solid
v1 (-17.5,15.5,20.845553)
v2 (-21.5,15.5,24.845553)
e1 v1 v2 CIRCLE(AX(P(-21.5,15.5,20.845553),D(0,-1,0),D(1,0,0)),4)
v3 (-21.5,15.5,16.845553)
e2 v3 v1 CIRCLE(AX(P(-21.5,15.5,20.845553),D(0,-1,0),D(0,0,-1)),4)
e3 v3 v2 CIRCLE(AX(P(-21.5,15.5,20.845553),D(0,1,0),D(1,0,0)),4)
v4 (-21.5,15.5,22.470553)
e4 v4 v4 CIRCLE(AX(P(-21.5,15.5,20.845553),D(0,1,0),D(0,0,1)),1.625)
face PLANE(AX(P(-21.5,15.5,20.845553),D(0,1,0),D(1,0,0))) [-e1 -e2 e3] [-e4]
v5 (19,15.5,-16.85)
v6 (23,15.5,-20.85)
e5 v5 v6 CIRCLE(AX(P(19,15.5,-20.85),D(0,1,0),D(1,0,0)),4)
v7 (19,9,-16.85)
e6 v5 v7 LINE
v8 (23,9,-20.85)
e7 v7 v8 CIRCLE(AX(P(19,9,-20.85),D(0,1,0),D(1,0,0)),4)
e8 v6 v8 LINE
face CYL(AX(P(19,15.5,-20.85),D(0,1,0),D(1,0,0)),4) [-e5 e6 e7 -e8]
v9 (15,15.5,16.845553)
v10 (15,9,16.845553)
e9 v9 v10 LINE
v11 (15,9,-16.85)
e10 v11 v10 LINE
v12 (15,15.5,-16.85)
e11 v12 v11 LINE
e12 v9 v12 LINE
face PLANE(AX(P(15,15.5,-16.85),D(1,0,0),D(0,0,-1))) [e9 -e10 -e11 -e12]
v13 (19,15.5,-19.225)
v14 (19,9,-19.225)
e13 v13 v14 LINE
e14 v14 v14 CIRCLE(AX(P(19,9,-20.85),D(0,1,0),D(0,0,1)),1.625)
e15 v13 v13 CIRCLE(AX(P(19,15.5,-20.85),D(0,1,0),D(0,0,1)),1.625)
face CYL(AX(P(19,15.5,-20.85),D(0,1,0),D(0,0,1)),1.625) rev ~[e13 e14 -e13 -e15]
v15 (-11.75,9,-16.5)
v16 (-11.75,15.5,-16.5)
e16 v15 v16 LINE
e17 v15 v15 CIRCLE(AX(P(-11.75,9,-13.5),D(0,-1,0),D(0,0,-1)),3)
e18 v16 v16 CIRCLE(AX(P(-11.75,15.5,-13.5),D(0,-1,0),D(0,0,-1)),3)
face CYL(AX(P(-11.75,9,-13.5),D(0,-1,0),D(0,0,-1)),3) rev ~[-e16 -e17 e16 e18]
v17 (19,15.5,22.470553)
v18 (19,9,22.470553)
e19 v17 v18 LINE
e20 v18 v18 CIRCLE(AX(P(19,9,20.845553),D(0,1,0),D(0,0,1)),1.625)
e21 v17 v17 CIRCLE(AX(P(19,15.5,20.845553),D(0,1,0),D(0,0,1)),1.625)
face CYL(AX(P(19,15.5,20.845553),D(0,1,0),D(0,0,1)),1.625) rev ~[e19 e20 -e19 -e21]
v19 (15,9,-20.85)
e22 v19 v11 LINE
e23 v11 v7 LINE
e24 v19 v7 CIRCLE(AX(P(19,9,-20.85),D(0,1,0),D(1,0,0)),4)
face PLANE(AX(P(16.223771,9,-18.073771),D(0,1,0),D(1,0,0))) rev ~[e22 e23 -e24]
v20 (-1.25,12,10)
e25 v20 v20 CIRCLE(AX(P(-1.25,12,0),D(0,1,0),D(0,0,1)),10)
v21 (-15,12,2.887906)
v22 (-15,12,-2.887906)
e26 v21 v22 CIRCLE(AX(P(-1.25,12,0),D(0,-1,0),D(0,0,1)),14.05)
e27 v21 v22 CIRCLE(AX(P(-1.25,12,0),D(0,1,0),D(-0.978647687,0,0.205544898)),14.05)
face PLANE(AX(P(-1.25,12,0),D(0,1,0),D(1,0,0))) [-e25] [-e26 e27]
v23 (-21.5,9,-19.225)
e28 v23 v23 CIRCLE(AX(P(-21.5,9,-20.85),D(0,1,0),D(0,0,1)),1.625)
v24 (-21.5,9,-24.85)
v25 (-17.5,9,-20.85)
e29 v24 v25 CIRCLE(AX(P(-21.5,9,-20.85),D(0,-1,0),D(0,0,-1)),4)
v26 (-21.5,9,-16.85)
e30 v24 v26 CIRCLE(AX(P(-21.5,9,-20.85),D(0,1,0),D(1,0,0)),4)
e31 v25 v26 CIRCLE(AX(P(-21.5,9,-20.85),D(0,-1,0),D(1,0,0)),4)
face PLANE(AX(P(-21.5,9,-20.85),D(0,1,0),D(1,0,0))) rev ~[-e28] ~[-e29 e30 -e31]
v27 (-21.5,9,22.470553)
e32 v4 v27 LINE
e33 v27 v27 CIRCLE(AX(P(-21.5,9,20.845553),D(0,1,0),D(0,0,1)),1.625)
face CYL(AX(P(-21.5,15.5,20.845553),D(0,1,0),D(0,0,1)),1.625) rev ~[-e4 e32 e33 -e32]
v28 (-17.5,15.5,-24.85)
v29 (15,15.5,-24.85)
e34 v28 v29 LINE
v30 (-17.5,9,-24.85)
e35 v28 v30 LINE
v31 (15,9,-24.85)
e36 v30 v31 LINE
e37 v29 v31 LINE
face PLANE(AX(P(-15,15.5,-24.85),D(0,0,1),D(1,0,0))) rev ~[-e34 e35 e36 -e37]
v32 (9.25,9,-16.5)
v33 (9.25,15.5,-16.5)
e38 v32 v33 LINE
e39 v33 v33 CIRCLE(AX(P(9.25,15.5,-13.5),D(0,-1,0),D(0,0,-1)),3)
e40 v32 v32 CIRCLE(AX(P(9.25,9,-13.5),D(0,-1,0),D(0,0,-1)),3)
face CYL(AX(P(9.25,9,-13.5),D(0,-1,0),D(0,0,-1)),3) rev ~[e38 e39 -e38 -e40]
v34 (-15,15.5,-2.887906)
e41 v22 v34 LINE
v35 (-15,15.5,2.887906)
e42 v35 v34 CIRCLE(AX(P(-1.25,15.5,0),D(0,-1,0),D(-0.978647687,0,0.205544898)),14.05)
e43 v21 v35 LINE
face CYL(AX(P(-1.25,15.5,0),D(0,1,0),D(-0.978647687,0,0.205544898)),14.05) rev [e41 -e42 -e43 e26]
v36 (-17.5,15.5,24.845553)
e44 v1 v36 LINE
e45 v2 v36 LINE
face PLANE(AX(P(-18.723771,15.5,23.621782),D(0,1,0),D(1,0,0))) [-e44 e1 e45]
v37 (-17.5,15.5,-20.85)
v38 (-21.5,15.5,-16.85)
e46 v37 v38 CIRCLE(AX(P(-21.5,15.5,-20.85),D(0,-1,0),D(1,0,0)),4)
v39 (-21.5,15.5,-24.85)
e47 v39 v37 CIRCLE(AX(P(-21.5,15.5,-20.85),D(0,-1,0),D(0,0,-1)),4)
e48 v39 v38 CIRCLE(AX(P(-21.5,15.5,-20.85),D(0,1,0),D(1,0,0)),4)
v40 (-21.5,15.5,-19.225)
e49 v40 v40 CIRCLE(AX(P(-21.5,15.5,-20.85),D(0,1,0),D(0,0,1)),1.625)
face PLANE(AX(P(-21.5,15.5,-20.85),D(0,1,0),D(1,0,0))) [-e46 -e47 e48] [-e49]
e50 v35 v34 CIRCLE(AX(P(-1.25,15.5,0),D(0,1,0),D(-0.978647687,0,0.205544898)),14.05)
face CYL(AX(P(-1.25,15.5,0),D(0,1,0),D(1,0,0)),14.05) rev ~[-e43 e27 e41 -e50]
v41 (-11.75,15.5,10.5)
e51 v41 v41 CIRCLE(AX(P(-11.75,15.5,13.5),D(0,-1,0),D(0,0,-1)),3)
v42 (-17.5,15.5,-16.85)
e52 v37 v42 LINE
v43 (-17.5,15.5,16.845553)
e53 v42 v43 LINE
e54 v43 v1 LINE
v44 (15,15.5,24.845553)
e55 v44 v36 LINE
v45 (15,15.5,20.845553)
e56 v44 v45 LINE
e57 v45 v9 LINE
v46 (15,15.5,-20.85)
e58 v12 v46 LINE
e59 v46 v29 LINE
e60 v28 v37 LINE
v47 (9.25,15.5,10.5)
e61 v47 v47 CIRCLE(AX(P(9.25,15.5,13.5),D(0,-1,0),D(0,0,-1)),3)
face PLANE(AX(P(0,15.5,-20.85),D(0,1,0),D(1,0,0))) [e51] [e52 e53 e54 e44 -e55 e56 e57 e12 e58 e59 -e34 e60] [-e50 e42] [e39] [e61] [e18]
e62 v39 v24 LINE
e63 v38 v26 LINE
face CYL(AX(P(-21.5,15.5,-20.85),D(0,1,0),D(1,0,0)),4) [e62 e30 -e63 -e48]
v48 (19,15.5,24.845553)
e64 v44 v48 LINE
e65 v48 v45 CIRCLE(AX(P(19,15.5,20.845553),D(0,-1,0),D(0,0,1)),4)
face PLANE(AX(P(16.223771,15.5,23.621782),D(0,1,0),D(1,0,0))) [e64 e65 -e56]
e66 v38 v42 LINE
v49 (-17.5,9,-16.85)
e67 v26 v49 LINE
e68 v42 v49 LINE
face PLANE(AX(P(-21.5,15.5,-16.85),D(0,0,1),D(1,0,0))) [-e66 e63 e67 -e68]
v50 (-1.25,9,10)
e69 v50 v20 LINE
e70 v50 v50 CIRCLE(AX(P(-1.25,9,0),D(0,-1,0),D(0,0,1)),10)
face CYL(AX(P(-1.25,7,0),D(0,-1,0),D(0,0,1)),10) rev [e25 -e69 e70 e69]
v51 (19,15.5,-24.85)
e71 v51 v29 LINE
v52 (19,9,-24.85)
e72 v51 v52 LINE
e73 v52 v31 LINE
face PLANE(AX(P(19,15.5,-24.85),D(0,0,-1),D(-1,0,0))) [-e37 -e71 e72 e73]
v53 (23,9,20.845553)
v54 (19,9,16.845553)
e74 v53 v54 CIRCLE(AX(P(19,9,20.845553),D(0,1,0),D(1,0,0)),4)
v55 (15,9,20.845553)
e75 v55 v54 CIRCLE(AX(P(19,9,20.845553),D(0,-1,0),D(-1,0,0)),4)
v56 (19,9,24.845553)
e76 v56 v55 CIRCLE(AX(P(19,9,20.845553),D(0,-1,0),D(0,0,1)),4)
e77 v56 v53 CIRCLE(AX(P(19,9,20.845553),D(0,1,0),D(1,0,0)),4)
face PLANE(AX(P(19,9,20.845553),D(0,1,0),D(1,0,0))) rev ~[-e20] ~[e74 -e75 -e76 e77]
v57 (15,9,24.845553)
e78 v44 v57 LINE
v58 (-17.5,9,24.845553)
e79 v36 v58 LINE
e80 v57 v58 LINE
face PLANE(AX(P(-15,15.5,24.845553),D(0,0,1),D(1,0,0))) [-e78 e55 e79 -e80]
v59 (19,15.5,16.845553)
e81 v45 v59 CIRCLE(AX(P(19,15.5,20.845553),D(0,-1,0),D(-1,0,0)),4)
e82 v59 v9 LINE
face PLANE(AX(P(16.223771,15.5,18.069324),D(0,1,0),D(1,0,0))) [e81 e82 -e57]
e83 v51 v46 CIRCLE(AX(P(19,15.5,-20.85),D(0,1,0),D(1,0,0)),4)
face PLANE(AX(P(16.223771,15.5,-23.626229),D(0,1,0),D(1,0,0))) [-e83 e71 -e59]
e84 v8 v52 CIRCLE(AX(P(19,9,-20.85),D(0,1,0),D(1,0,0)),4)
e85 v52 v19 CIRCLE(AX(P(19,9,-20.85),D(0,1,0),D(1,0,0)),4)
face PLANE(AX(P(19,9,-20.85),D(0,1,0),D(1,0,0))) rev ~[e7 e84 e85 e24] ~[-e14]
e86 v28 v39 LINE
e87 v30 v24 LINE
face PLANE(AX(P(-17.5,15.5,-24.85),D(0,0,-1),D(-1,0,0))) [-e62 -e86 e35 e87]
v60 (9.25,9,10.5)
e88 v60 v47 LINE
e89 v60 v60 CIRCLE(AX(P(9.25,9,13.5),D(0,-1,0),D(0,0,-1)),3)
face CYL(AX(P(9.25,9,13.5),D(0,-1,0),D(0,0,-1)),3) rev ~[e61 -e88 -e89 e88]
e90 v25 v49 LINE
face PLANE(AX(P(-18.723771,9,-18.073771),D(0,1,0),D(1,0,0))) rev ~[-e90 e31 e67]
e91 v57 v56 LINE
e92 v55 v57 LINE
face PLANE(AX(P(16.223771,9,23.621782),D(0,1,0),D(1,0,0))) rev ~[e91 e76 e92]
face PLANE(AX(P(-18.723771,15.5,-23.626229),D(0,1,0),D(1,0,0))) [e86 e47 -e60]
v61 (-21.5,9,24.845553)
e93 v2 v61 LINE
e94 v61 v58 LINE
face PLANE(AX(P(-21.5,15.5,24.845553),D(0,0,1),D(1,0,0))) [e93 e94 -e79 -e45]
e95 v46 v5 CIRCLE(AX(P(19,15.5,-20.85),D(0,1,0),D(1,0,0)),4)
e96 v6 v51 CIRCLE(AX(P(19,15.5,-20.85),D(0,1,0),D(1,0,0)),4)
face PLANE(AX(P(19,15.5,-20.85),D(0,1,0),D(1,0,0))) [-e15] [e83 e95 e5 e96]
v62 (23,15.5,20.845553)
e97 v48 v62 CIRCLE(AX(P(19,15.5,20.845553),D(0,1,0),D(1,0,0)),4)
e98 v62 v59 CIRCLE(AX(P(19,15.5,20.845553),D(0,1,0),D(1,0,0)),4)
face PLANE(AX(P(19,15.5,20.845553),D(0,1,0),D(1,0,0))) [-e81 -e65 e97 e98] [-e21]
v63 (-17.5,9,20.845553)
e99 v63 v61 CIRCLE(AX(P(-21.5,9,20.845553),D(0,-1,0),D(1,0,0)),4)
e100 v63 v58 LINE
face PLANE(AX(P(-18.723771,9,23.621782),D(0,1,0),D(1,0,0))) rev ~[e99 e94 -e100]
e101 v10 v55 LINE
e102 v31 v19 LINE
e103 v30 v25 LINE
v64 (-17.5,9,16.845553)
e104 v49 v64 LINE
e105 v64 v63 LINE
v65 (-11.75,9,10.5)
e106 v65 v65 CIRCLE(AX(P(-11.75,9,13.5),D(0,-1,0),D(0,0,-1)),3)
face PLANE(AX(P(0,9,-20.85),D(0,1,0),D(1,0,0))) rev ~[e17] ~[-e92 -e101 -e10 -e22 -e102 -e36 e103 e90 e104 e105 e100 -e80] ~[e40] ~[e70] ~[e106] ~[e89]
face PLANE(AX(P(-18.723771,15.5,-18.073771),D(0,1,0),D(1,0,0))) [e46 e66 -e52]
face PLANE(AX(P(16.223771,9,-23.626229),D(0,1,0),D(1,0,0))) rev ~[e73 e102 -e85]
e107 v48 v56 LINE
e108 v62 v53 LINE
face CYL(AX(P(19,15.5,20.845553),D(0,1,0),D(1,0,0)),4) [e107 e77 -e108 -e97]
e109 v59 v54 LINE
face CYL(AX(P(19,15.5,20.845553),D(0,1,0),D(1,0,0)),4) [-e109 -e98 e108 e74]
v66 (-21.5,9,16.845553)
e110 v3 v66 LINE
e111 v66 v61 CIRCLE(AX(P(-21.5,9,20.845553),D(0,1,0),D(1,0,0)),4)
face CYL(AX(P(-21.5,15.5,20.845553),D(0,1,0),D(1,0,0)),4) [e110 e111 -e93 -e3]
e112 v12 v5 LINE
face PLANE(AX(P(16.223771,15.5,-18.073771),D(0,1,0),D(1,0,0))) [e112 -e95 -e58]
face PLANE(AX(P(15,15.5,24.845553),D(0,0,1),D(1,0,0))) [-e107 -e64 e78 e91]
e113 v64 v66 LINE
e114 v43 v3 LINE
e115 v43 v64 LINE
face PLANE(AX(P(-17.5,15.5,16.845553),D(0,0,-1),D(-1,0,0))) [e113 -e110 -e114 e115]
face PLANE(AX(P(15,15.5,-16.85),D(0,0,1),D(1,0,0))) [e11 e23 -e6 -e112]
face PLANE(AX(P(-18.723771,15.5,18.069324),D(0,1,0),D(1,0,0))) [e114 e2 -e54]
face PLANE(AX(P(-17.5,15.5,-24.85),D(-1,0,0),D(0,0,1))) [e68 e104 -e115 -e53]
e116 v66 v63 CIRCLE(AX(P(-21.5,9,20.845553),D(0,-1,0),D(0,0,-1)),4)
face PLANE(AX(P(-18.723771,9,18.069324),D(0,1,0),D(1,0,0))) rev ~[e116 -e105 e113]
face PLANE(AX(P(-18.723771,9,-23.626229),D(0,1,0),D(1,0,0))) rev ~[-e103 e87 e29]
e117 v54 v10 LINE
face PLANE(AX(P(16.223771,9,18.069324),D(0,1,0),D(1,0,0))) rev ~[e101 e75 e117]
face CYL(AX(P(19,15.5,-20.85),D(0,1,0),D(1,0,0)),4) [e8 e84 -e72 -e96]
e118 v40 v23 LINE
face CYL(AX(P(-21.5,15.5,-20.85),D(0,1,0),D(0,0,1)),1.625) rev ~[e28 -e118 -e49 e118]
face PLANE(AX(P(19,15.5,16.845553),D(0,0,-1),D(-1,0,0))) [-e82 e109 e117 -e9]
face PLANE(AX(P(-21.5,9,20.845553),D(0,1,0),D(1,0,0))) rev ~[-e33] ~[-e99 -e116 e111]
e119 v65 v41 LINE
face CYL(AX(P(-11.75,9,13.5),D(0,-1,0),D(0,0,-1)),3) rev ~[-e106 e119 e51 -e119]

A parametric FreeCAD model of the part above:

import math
import FreeCAD as App
import Part
import Sketcher

V = App.Vector

doc = App.newDocument("Part")
params = doc.addObject("Spreadsheet::Sheet", "Params")
for row, (alias, value) in enumerate([
    ("sketch1_radius", "14 mm"),
    ("sketch1_diameter", "2.75 mm"),
    ("sketch1_width", "30 mm"),
    ("sketch1_height", "33.7 mm"),
    ("pad1_length", "15 mm"),
    ("sketch2_diameter", "28 mm"),
    ("sketch2_diameter2", "20 mm"),
    ("pad2_length", "8 mm"),
    ("sketch3_diameter", "28 mm"),
    ("sketch3_diameter2", "20 mm"),
    ("pocket1_length", "3 mm"),
    ("sketch4_radius", "14 mm"),
    ("sketch4_diameter", "2.75 mm"),
    ("sketch4_width", "30 mm"),
    ("sketch4_height", "33.7 mm"),
    ("pad3_length", "0.5 mm"),
    ("pocket2_length", "7 mm"),
    ("pocket3_length", "2 mm"),
    ("sketch7_radius", "3.5 mm"),
    ("sketch7_diameter", "3.25 mm"),
    ("sketch7_height", "3.5 mm"),
    ("pad4_length", "6.5 mm"),
    ("sketch8_diameter", "7 mm"),
    ("sketch8_diameter2", "3.25 mm"),
    ("pocket4_length", "3 mm"),
    ("sketch9_diameter", "6 mm"),
    ("pocket5_length", "28 mm"),
    ("sketch10_diameter", "28.1 mm"),
    ("pocket6_length", "3.5 mm"),
    ("sketch11_width", "30 mm"),
    ("sketch11_height", "8 mm"),
    ("pad5_length", "6.5 mm"),
    ("sketch12_radius", "14.05 mm"),
    ("sketch12_width", "2.5 mm"),
    ("pad6_length", "6.5 mm"),
    ("sketch13_diameter", "28 mm"),
    ("sketch13_diameter2", "28.1 mm"),
    ("pad7_length", "3 mm"),
    ("sketch14_radius", "4 mm"),
    ("sketch14_diameter", "3.25 mm"),
    ("sketch14_width", "4 mm"),
    ("pad8_length", "6.5 mm"),
], start=1):
    params.set(f"A{row}", alias)
    params.set(f"B{row}", "=" + value)
    params.setAlias(f"B{row}", alias)

body = doc.addObject("PartDesign::Body", "Body")

# Sketch on XZ plane
sketch1 = body.newObject("Sketcher::SketchObject", "Sketch")
sketch1.AttachmentSupport = (doc.getObject("XZ_Plane"), [""])
sketch1.MapMode = "FlatFace"
sketch1.addGeometry([
    Part.LineSegment(V(-15, 16.9, 0), V(15, 16.9, 0)),  # 0
    Part.LineSegment(V(15, 16.9, 0), V(15, -16.9, 0)),  # 1
    Part.LineSegment(V(15, -16.9, 0), V(-15, -16.9, 0)),  # 2
    Part.LineSegment(V(-15, -16.9, 0), V(-15, -2.6, 0)),  # 3
    Part.ArcOfCircle(Part.Circle(V(-1.2, 0, 0), V(0, 0, 1), 14), math.radians(-169), math.radians(0)),  # 4
    Part.ArcOfCircle(Part.Circle(V(-1.2, 0, 0), V(0, 0, 1), 14), math.radians(0), math.radians(169)),  # 5
    Part.LineSegment(V(-15, 2.6, 0), V(-15, 16.9, 0)),  # 6
    Part.Circle(V(-11.8, 13.5, 0), V(0, 0, 1), 1.4),  # 7
    Part.Circle(V(9.2, 13.5, 0), V(0, 0, 1), 1.5),  # 8
    Part.Circle(V(-11.8, -13.5, 0), V(0, 0, 1), 1.4),  # 9
    Part.Circle(V(9.2, -13.5, 0), V(0, 0, 1), 1.5),  # 10
], False)
sketch1.addConstraint([
    Sketcher.Constraint("Coincident", 0, 2, 1, 1),
    Sketcher.Constraint("Coincident", 1, 2, 2, 1),
    Sketcher.Constraint("Coincident", 2, 2, 3, 1),
    Sketcher.Constraint("Coincident", 3, 2, 4, 1),
    Sketcher.Constraint("Tangent", 4, 2, 5, 1),
    Sketcher.Constraint("Coincident", 5, 2, 6, 1),
    Sketcher.Constraint("Coincident", 6, 2, 0, 1),
    Sketcher.Constraint("Horizontal", 0),
    Sketcher.Constraint("Vertical", 1),
    Sketcher.Constraint("Horizontal", 2),
    Sketcher.Constraint("Vertical", 3),
    Sketcher.Constraint("Vertical", 6),
    Sketcher.Constraint("Equal", 4, 5),
    Sketcher.Constraint("Equal", 7, 9),
    Sketcher.Constraint("Symmetric", 0, 2, 2, 2, -1, 1),
    Sketcher.Constraint("Symmetric", 7, 3, 9, 3, -1),
    Sketcher.Constraint("Symmetric", 8, 3, 10, 3, -1),
    Sketcher.Constraint("Symmetric", 3, 2, 5, 2, -1),
    Sketcher.Constraint("PointOnObject", 4, 2, -1),
    Sketcher.Constraint("Horizontal", 7, 3, 8, 3),
    Sketcher.Constraint("Radius", 4, 14.0),
    Sketcher.Constraint("Diameter", 7, 2.75),
    Sketcher.Constraint("DistanceX", 0, 1, 0, 2, 30.0),
    Sketcher.Constraint("DistanceY", 1, 2, 1, 1, 33.7),
    Sketcher.Constraint("DistanceX", 7, 3, 8, 3, 21.0),
    Sketcher.Constraint("DistanceY", 9, 3, 7, 3, 27.0),
    Sketcher.Constraint("DistanceX", 7, 3, 4, 3, 10.5),
    Sketcher.Constraint("Diameter", 8, 2.921691),
    Sketcher.Constraint("Diameter", 10, 2.961311),
    Sketcher.Constraint("DistanceX", 4, 3, -1, 1, 1.25),
])
sketch1.setExpression("Constraints[20]", "Params.sketch1_radius")
sketch1.setExpression("Constraints[21]", "Params.sketch1_diameter")
sketch1.setExpression("Constraints[22]", "Params.sketch1_width")
sketch1.setExpression("Constraints[23]", "Params.sketch1_height")
pad1 = body.newObject("PartDesign::Pad", "Pad")
pad1.Profile = sketch1
pad1.setExpression("Length", "Params.pad1_length")
pad1.Reversed = True

# Sketch on XZ plane
sketch2 = body.newObject("Sketcher::SketchObject", "Sketch001")
sketch2.AttachmentSupport = (doc.getObject("XZ_Plane"), [""])
sketch2.MapMode = "FlatFace"
sketch2.AttachmentOffset = App.Placement(V(0, 0, -7), App.Rotation())
sketch2.addGeometry([
    Part.Circle(V(-1, 0, 0), V(0, 0, 1), 14),
    Part.Circle(V(-1, 0, 0), V(0, 0, 1), 10),
], False)
sketch2.addConstraint([
    Sketcher.Constraint("Coincident", 1, 3, 0, 3),
    Sketcher.Constraint("PointOnObject", 0, 3, -1),
    Sketcher.Constraint("Diameter", 0, 28.0),
    Sketcher.Constraint("Diameter", 1, 20.0),
    Sketcher.Constraint("DistanceX", 0, 3, -1, 1, 1.25),
])
sketch2.setExpression("Constraints[2]", "Params.sketch2_diameter")
sketch2.setExpression("Constraints[3]", "Params.sketch2_diameter2")
pad2 = body.newObject("PartDesign::Pad", "Pad001")
pad2.Profile = sketch2
pad2.setExpression("Length", "Params.pad2_length")
pad2.Reversed = True

# Sketch on XZ plane
sketch3 = body.newObject("Sketcher::SketchObject", "Sketch002")
sketch3.AttachmentSupport = (doc.getObject("XZ_Plane"), [""])
sketch3.MapMode = "FlatFace"
sketch3.AttachmentOffset = App.Placement(V(0, 0, -12), App.Rotation())
sketch3.addGeometry([
    Part.Circle(V(-1, 0, 0), V(0, 0, 1), 14),
    Part.Circle(V(-1, 0, 0), V(0, 0, 1), 10),
], False)
sketch3.addConstraint([
    Sketcher.Constraint("Coincident", 1, 3, 0, 3),
    Sketcher.Constraint("PointOnObject", 0, 3, -1),
    Sketcher.Constraint("Diameter", 0, 28.0),
    Sketcher.Constraint("Diameter", 1, 20.0),
    Sketcher.Constraint("DistanceX", 0, 3, -1, 1, 1.25),
])
sketch3.setExpression("Constraints[2]", "Params.sketch3_diameter")
sketch3.setExpression("Constraints[3]", "Params.sketch3_diameter2")
pocket1 = body.newObject("PartDesign::Pocket", "Pocket")
pocket1.Profile = sketch3
pocket1.setExpression("Length", "Params.pocket1_length")

# Sketch on XZ plane
sketch4 = body.newObject("Sketcher::SketchObject", "Sketch003")
sketch4.AttachmentSupport = (doc.getObject("XZ_Plane"), [""])
sketch4.MapMode = "FlatFace"
sketch4.AttachmentOffset = App.Placement(V(0, 0, -15), App.Rotation())
sketch4.addGeometry([
    Part.LineSegment(V(-15, -16.9, 0), V(-15, -2.6, 0)),  # 0
    Part.ArcOfCircle(Part.Circle(V(-1.2, 0, 0), V(0, 0, 1), 14), math.radians(-169), math.radians(169)),  # 1
    Part.LineSegment(V(-15, 2.6, 0), V(-15, 16.9, 0)),  # 2
    Part.LineSegment(V(-15, 16.9, 0), V(15, 16.9, 0)),  # 3
    Part.LineSegment(V(15, 16.9, 0), V(15, -16.9, 0)),  # 4
    Part.LineSegment(V(15, -16.9, 0), V(-15, -16.9, 0)),  # 5
    Part.Circle(V(-11.8, 13.5, 0), V(0, 0, 1), 1.4),  # 6
    Part.Circle(V(9.2, 13.5, 0), V(0, 0, 1), 1.5),  # 7
    Part.Circle(V(-11.8, -13.5, 0), V(0, 0, 1), 1.4),  # 8
    Part.Circle(V(9.2, -13.5, 0), V(0, 0, 1), 1.5),  # 9
], False)
sketch4.addConstraint([
    Sketcher.Constraint("Coincident", 0, 2, 1, 1),
    Sketcher.Constraint("Coincident", 1, 2, 2, 1),
    Sketcher.Constraint("Coincident", 2, 2, 3, 1),
    Sketcher.Constraint("Coincident", 3, 2, 4, 1),
    Sketcher.Constraint("Coincident", 4, 2, 5, 1),
    Sketcher.Constraint("Coincident", 5, 2, 0, 1),
    Sketcher.Constraint("Vertical", 0),
    Sketcher.Constraint("Vertical", 2),
    Sketcher.Constraint("Horizontal", 3),
    Sketcher.Constraint("Vertical", 4),
    Sketcher.Constraint("Horizontal", 5),
    Sketcher.Constraint("Equal", 6, 8),
    Sketcher.Constraint("Symmetric", 2, 2, 4, 2, -1, 1),
    Sketcher.Constraint("Symmetric", 6, 3, 8, 3, -1),
    Sketcher.Constraint("Symmetric", 7, 3, 9, 3, -1),
    Sketcher.Constraint("Symmetric", 0, 2, 1, 2, -1),
    Sketcher.Constraint("Horizontal", 6, 3, 7, 3),
    Sketcher.Constraint("Radius", 1, 14.0),
    Sketcher.Constraint("Diameter", 6, 2.75),
    Sketcher.Constraint("DistanceX", 3, 1, 3, 2, 30.0),
    Sketcher.Constraint("DistanceY", 4, 2, 4, 1, 33.7),
    Sketcher.Constraint("DistanceX", 6, 3, 7, 3, 21.0),
    Sketcher.Constraint("DistanceY", 8, 3, 6, 3, 27.0),
    Sketcher.Constraint("DistanceX", 6, 3, 1, 3, 10.5),
    Sketcher.Constraint("Diameter", 7, 2.921691),
    Sketcher.Constraint("Diameter", 9, 2.961311),
    Sketcher.Constraint("DistanceX", 1, 3, -1, 1, 1.25),
])
sketch4.setExpression("Constraints[17]", "Params.sketch4_radius")
sketch4.setExpression("Constraints[18]", "Params.sketch4_diameter")
sketch4.setExpression("Constraints[19]", "Params.sketch4_width")
sketch4.setExpression("Constraints[20]", "Params.sketch4_height")
pad3 = body.newObject("PartDesign::Pad", "Pad002")
pad3.Profile = sketch4
pad3.setExpression("Length", "Params.pad3_length")
pad3.Reversed = True

# Sketch on XZ plane
sketch5 = body.newObject("Sketcher::SketchObject", "Sketch004")
sketch5.AttachmentSupport = (doc.getObject("XZ_Plane"), [""])
sketch5.MapMode = "FlatFace"
sketch5.addGeometry([
    Part.LineSegment(V(-16, 17, 0), V(-16, -17, 0)),
    Part.LineSegment(V(-16, -17, 0), V(16, -17, 0)),
    Part.LineSegment(V(16, -17, 0), V(16, 17, 0)),
    Part.LineSegment(V(16, 17, 0), V(-16, 17, 0)),
], False)
sketch5.addConstraint([
    Sketcher.Constraint("Coincident", 0, 2, 1, 1),
    Sketcher.Constraint("Coincident", 1, 2, 2, 1),
    Sketcher.Constraint("Coincident", 2, 2, 3, 1),
    Sketcher.Constraint("Coincident", 3, 2, 0, 1),
    Sketcher.Constraint("Vertical", 0),
    Sketcher.Constraint("Horizontal", 1),
    Sketcher.Constraint("Vertical", 2),
    Sketcher.Constraint("Horizontal", 3),
    Sketcher.Constraint("Symmetric", 0, 2, 2, 2, -1, 1),
    Sketcher.Constraint("DistanceX", 1, 1, 1, 2, 32.415484),
    Sketcher.Constraint("DistanceY", 0, 2, 0, 1, 34.714622),
])
pocket2 = body.newObject("PartDesign::Pocket", "Pocket001")
pocket2.Profile = sketch5
pocket2.setExpression("Length", "Params.pocket2_length")

# Sketch on XZ plane
sketch6 = body.newObject("Sketcher::SketchObject", "Sketch005")
sketch6.AttachmentSupport = (doc.getObject("XZ_Plane"), [""])
sketch6.MapMode = "FlatFace"
sketch6.AttachmentOffset = App.Placement(V(0, 0, -7), App.Rotation())
sketch6.addGeometry([
    Part.LineSegment(V(-17, 18, 0), V(-17, -18, 0)),
    Part.LineSegment(V(-17, -18, 0), V(17, -18, 0)),
    Part.LineSegment(V(17, -18, 0), V(17, 18, 0)),
    Part.LineSegment(V(17, 18, 0), V(-17, 18, 0)),
], False)
sketch6.addConstraint([
    Sketcher.Constraint("Coincident", 0, 2, 1, 1),
    Sketcher.Constraint("Coincident", 1, 2, 2, 1),
    Sketcher.Constraint("Coincident", 2, 2, 3, 1),
    Sketcher.Constraint("Coincident", 3, 2, 0, 1),
    Sketcher.Constraint("Vertical", 0),
    Sketcher.Constraint("Horizontal", 1),
    Sketcher.Constraint("Vertical", 2),
    Sketcher.Constraint("Horizontal", 3),
    Sketcher.Constraint("Symmetric", 0, 2, 2, 2, -1, 1),
    Sketcher.Constraint("DistanceX", 1, 1, 1, 2, 33.435139),
    Sketcher.Constraint("DistanceY", 0, 2, 0, 1, 35.826973),
])
pocket3 = body.newObject("PartDesign::Pocket", "Pocket002")
pocket3.Profile = sketch6
pocket3.setExpression("Length", "Params.pocket3_length")

# Sketch on XZ plane
sketch7 = body.newObject("Sketcher::SketchObject", "Sketch006")
sketch7.AttachmentSupport = (doc.getObject("XZ_Plane"), [""])
sketch7.MapMode = "FlatFace"
sketch7.AttachmentOffset = App.Placement(V(0, 0, -9), App.Rotation())
sketch7.addGeometry([
    Part.LineSegment(V(-3.5, 20.4, 0), V(-3.5, 16.9, 0)),  # 0
    Part.LineSegment(V(-3.5, 16.9, 0), V(3.5, 16.9, 0)),  # 1
    Part.LineSegment(V(3.5, 16.9, 0), V(3.5, 20.4, 0)),  # 2
    Part.ArcOfCircle(Part.Circle(V(0, 20.4, 0), V(0, 0, 1), 3.5), math.radians(0), math.radians(180)),  # 3
    Part.Circle(V(0, 20.4, 0), V(0, 0, 1), 1.6),  # 4
    Part.ArcOfCircle(Part.Circle(V(0, -20.4, 0), V(0, 0, 1), 3.5), math.radians(180), math.radians(360)),  # 5
    Part.LineSegment(V(3.5, -20.4, 0), V(3.5, -16.9, 0)),  # 6
    Part.LineSegment(V(3.5, -16.9, 0), V(-3.5, -16.9, 0)),  # 7
    Part.LineSegment(V(-3.5, -16.9, 0), V(-3.5, -20.4, 0)),  # 8
    Part.Circle(V(0, -20.4, 0), V(0, 0, 1), 1.6),  # 9
], False)
sketch7.addConstraint([
    Sketcher.Constraint("Coincident", 0, 2, 1, 1),
    Sketcher.Constraint("Coincident", 1, 2, 2, 1),
    Sketcher.Constraint("Tangent", 2, 2, 3, 1),
    Sketcher.Constraint("Tangent", 3, 2, 0, 1),
    Sketcher.Constraint("Tangent", 5, 2, 6, 1),
    Sketcher.Constraint("Coincident", 6, 2, 7, 1),
    Sketcher.Constraint("Coincident", 7, 2, 8, 1),
    Sketcher.Constraint("Tangent", 8, 2, 5, 1),
    Sketcher.Constraint("Vertical", 0),
    Sketcher.Constraint("Horizontal", 1),
    Sketcher.Constraint("Vertical", 2),
    Sketcher.Constraint("Vertical", 6),
    Sketcher.Constraint("Horizontal", 7),
    Sketcher.Constraint("Vertical", 8),
    Sketcher.Constraint("Coincident", 4, 3, 3, 3),
    Sketcher.Constraint("Coincident", 9, 3, 5, 3),
    Sketcher.Constraint("Equal", 3, 5),
    Sketcher.Constraint("Equal", 4, 9),
    Sketcher.Constraint("Symmetric", 3, 3, 5, 3, -1, 1),
    Sketcher.Constraint("Symmetric", 1, 2, 6, 2, -1),
    Sketcher.Constraint("Radius", 3, 3.5),
    Sketcher.Constraint("Diameter", 4, 3.25),
    Sketcher.Constraint("DistanceY", 0, 2, 0, 1, 3.5),
    Sketcher.Constraint("DistanceY", 5, 3, 3, 3, 40.7),
])
sketch7.setExpression("Constraints[20]", "Params.sketch7_radius")
sketch7.setExpression("Constraints[21]", "Params.sketch7_diameter")
sketch7.setExpression("Constraints[22]", "Params.sketch7_height")
pad4 = body.newObject("PartDesign::Pad", "Pad003")
pad4.Profile = sketch7
pad4.setExpression("Length", "Params.pad4_length")
pad4.Reversed = True

# Sketch on XZ plane
sketch8 = body.newObject("Sketcher::SketchObject", "Sketch007")
sketch8.AttachmentSupport = (doc.getObject("XZ_Plane"), [""])
sketch8.MapMode = "FlatFace"
sketch8.AttachmentOffset = App.Placement(V(0, 0, -9), App.Rotation())
sketch8.addGeometry([
    Part.Circle(V(0, 20.4, 0), V(0, 0, 1), 3.5),
    Part.Circle(V(0, 20.4, 0), V(0, 0, 1), 1.6),
    Part.Circle(V(0, -20.4, 0), V(0, 0, 1), 3.5),
    Part.Circle(V(0, -20.4, 0), V(0, 0, 1), 1.6),
], False)
sketch8.addConstraint([
    Sketcher.Constraint("Coincident", 1, 3, 0, 3),
    Sketcher.Constraint("Coincident", 3, 3, 2, 3),
    Sketcher.Constraint("Equal", 0, 2),
    Sketcher.Constraint("Equal", 1, 3),
    Sketcher.Constraint("Symmetric", 0, 3, 2, 3, -1, 1),
    Sketcher.Constraint("PointOnObject", 0, 3, -2),
    Sketcher.Constraint("Diameter", 0, 7.0),
    Sketcher.Constraint("Diameter", 1, 3.25),
    Sketcher.Constraint("DistanceY", 2, 3, 0, 3, 40.7),
])
sketch8.setExpression("Constraints[6]", "Params.sketch8_diameter")
sketch8.setExpression("Constraints[7]", "Params.sketch8_diameter2")
pocket4 = body.newObject("PartDesign::Pocket", "Pocket003")
pocket4.Profile = sketch8
pocket4.setExpression("Length", "Params.pocket4_length")

# Sketch on XZ plane
sketch9 = body.newObject("Sketcher::SketchObject", "Sketch008")
sketch9.AttachmentSupport = (doc.getObject("XZ_Plane"), [""])
sketch9.MapMode = "FlatFace"
sketch9.AttachmentOffset = App.Placement(V(0, 0, -9), App.Rotation())
sketch9.addGeometry([
    Part.Circle(V(-11.8, 13.5, 0), V(0, 0, 1), 3),
    Part.Circle(V(9.2, 13.5, 0), V(0, 0, 1), 3),
    Part.Circle(V(9.2, -13.5, 0), V(0, 0, 1), 3),
    Part.Circle(V(-11.8, -13.5, 0), V(0, 0, 1), 3),
], False)
sketch9.addConstraint([
    Sketcher.Constraint("Equal", 0, 1),
    Sketcher.Constraint("Equal", 1, 2),
    Sketcher.Constraint("Equal", 2, 3),
    Sketcher.Constraint("Symmetric", 1, 3, 2, 3, -1),
    Sketcher.Constraint("Symmetric", 0, 3, 3, 3, -1),
    Sketcher.Constraint("Horizontal", 0, 3, 1, 3),
    Sketcher.Constraint("Diameter", 0, 6.0),
    Sketcher.Constraint("DistanceX", 0, 3, 1, 3, 21.0),
    Sketcher.Constraint("DistanceY", 2, 3, 1, 3, 27.0),
    Sketcher.Constraint("DistanceX", 0, 3, -1, 1, 11.75),
])
sketch9.setExpression("Constraints[6]", "Params.sketch9_diameter")
pocket5 = body.newObject("PartDesign::Pocket", "Pocket004")
pocket5.Profile = sketch9
pocket5.setExpression("Length", "Params.pocket5_length")

# Sketch on XZ plane
sketch10 = body.newObject("Sketcher::SketchObject", "Sketch009")
sketch10.AttachmentSupport = (doc.getObject("XZ_Plane"), [""])
sketch10.MapMode = "FlatFace"
sketch10.AttachmentOffset = App.Placement(V(0, 0, -15.5), App.Rotation())
sketch10.addGeometry(Part.Circle(V(-1, 0, 0), V(0, 0, 1), 14), False)
sketch10.addConstraint([
    Sketcher.Constraint("PointOnObject", 0, 3, -1),
    Sketcher.Constraint("Diameter", 0, 28.1),
    Sketcher.Constraint("DistanceX", 0, 3, -1, 1, 1.25),
])
sketch10.setExpression("Constraints[1]", "Params.sketch10_diameter")
pocket6 = body.newObject("PartDesign::Pocket", "Pocket005")
pocket6.Profile = sketch10
pocket6.setExpression("Length", "Params.pocket6_length")
pocket6.Reversed = True

# Sketch on XZ plane
sketch11 = body.newObject("Sketcher::SketchObject", "Sketch010")
sketch11.AttachmentSupport = (doc.getObject("XZ_Plane"), [""])
sketch11.MapMode = "FlatFace"
sketch11.AttachmentOffset = App.Placement(V(0, 0, -15.5), App.Rotation())
sketch11.addGeometry([
    Part.LineSegment(V(-15, -25, 0), V(-15, -17, 0)),  # 0
    Part.LineSegment(V(-15, -17, 0), V(15, -17, 0)),  # 1
    Part.LineSegment(V(15, -17, 0), V(15, -25, 0)),  # 2
    Part.LineSegment(V(15, -25, 0), V(-15, -25, 0)),  # 3
    Part.LineSegment(V(-15, 17, 0), V(-15, 25, 0)),  # 4
    Part.LineSegment(V(-15, 25, 0), V(15, 25, 0)),  # 5
    Part.LineSegment(V(15, 25, 0), V(15, 17, 0)),  # 6
    Part.LineSegment(V(15, 17, 0), V(-15, 17, 0)),  # 7
], False)
sketch11.addConstraint([
    Sketcher.Constraint("Coincident", 0, 2, 1, 1),
    Sketcher.Constraint("Coincident", 1, 2, 2, 1),
    Sketcher.Constraint("Coincident", 2, 2, 3, 1),
    Sketcher.Constraint("Coincident", 3, 2, 0, 1),
    Sketcher.Constraint("Coincident", 4, 2, 5, 1),
    Sketcher.Constraint("Coincident", 5, 2, 6, 1),
    Sketcher.Constraint("Coincident", 6, 2, 7, 1),
    Sketcher.Constraint("Coincident", 7, 2, 4, 1),
    Sketcher.Constraint("Vertical", 0),
    Sketcher.Constraint("Horizontal", 1),
    Sketcher.Constraint("Vertical", 2),
    Sketcher.Constraint("Horizontal", 3),
    Sketcher.Constraint("Vertical", 4),
    Sketcher.Constraint("Horizontal", 5),
    Sketcher.Constraint("Vertical", 6),
    Sketcher.Constraint("Horizontal", 7),
    Sketcher.Constraint("Symmetric", 0, 2, 6, 2, -1, 1),
    Sketcher.Constraint("Vertical", 3, 2, 4, 2),
    Sketcher.Constraint("Vertical", 2, 2, 5, 2),
    Sketcher.Constraint("DistanceX", 1, 1, 1, 2, 30.0),
    Sketcher.Constraint("DistanceY", 0, 1, 0, 2, 8.0),
    Sketcher.Constraint("DistanceY", 1, 2, 6, 2, 33.7),
    Sketcher.Constraint("DistanceY", 4, 1, 4, 2, 7.995553),
])
sketch11.setExpression("Constraints[19]", "Params.sketch11_width")
sketch11.setExpression("Constraints[20]", "Params.sketch11_height")
pad5 = body.newObject("PartDesign::Pad", "Pad004")
pad5.Profile = sketch11
pad5.setExpression("Length", "Params.pad5_length")

# Sketch on XZ plane
sketch12 = body.newObject("Sketcher::SketchObject", "Sketch011")
sketch12.AttachmentSupport = (doc.getObject("XZ_Plane"), [""])
sketch12.MapMode = "FlatFace"
sketch12.AttachmentOffset = App.Placement(V(0, 0, -15.5), App.Rotation())
sketch12.addGeometry([
    Part.LineSegment(V(-15, -2.9, 0), V(-15, -24.9, 0)),  # 0
    Part.LineSegment(V(-15, -24.9, 0), V(-17.5, -24.9, 0)),  # 1
    Part.LineSegment(V(-17.5, -24.9, 0), V(-17.5, 24.8, 0)),  # 2
    Part.LineSegment(V(-17.5, 24.8, 0), V(-15, 24.8, 0)),  # 3
    Part.LineSegment(V(-15, 24.8, 0), V(-15, 2.9, 0)),  # 4
    Part.ArcOfCircle(Part.Circle(V(-1.2, 0, 0), V(0, 0, 1), 14.1), math.radians(168), math.radians(192)),  # 5
], False)
sketch12.addConstraint([
    Sketcher.Constraint("Coincident", 0, 2, 1, 1),
    Sketcher.Constraint("Coincident", 1, 2, 2, 1),
    Sketcher.Constraint("Coincident", 2, 2, 3, 1),
    Sketcher.Constraint("Coincident", 3, 2, 4, 1),
    Sketcher.Constraint("Coincident", 4, 2, 5, 1),
    Sketcher.Constraint("Coincident", 5, 2, 0, 1),
    Sketcher.Constraint("Vertical", 0),
    Sketcher.Constraint("Horizontal", 1),
    Sketcher.Constraint("Vertical", 2),
    Sketcher.Constraint("Horizontal", 3),
    Sketcher.Constraint("Vertical", 4),
    Sketcher.Constraint("Symmetric", 4, 2, 5, 2, -1),
    Sketcher.Constraint("Radius", 5, 14.05),
    Sketcher.Constraint("DistanceX", 1, 2, 1, 1, 2.5),
    Sketcher.Constraint("DistanceX", 0, 2, -1, 1, 15.0),
    Sketcher.Constraint("DistanceX", 5, 3, -1, 1, 1.25),
    Sketcher.Constraint("DistanceY", 0, 2, -1, 1, 24.85),
    Sketcher.Constraint("DistanceY", 2, 1, 2, 2, 49.695553),
])
sketch12.setExpression("Constraints[12]", "Params.sketch12_radius")
sketch12.setExpression("Constraints[13]", "Params.sketch12_width")
pad6 = body.newObject("PartDesign::Pad", "Pad005")
pad6.Profile = sketch12
pad6.setExpression("Length", "Params.pad6_length")

# Sketch on XZ plane
sketch13 = body.newObject("Sketcher::SketchObject", "Sketch012")
sketch13.AttachmentSupport = (doc.getObject("XZ_Plane"), [""])
sketch13.MapMode = "FlatFace"
sketch13.AttachmentOffset = App.Placement(V(0, 0, -12), App.Rotation())
sketch13.addGeometry([
    Part.Circle(V(-1, 0, 0), V(0, 0, 1), 14),
    Part.Circle(V(-1, 0, 0), V(0, 0, 1), 14),
], False)
sketch13.addConstraint([
    Sketcher.Constraint("Coincident", 1, 3, 0, 3),
    Sketcher.Constraint("PointOnObject", 0, 3, -1),
    Sketcher.Constraint("Diameter", 1, 28.0),
    Sketcher.Constraint("Diameter", 0, 28.1),
    Sketcher.Constraint("DistanceX", 0, 3, -1, 1, 1.25),
])
sketch13.setExpression("Constraints[2]", "Params.sketch13_diameter")
sketch13.setExpression("Constraints[3]", "Params.sketch13_diameter2")
pad7 = body.newObject("PartDesign::Pad", "Pad006")
pad7.Profile = sketch13
pad7.setExpression("Length", "Params.pad7_length")

# Sketch on XZ plane
sketch14 = body.newObject("Sketcher::SketchObject", "Sketch013")
sketch14.AttachmentSupport = (doc.getObject("XZ_Plane"), [""])
sketch14.MapMode = "FlatFace"
sketch14.AttachmentOffset = App.Placement(V(0, 0, -15.5), App.Rotation())
sketch14.addGeometry([
    Part.LineSegment(V(-17.5, -24.9, 0), V(-21.5, -24.9, 0)),  # 0
    Part.ArcOfCircle(Part.Circle(V(-21.5, -20.9, 0), V(0, 0, 1), 4), math.radians(90), math.radians(270)),  # 1
    Part.LineSegment(V(-21.5, -16.9, 0), V(-17.5, -16.9, 0)),  # 2
    Part.LineSegment(V(-17.5, -16.9, 0), V(-17.5, -24.9, 0)),  # 3
    Part.Circle(V(-21.5, -20.9, 0), V(0, 0, 1), 1.6),  # 4
    Part.LineSegment(V(19, -24.9, 0), V(15, -24.9, 0)),  # 5
    Part.LineSegment(V(15, -24.9, 0), V(15, -16.9, 0)),  # 6
    Part.LineSegment(V(15, -16.9, 0), V(19, -16.9, 0)),  # 7
    Part.ArcOfCircle(Part.Circle(V(19, -20.9, 0), V(0, 0, 1), 4), math.radians(-90), math.radians(90)),  # 8
    Part.Circle(V(19, -20.9, 0), V(0, 0, 1), 1.6),  # 9
    Part.LineSegment(V(-17.5, 16.8, 0), V(-21.5, 16.8, 0)),  # 10
    Part.ArcOfCircle(Part.Circle(V(-21.5, 20.8, 0), V(0, 0, 1), 4), math.radians(90), math.radians(270)),  # 11
    Part.LineSegment(V(-21.5, 24.8, 0), V(-17.5, 24.8, 0)),  # 12
    Part.LineSegment(V(-17.5, 24.8, 0), V(-17.5, 16.8, 0)),  # 13
    Part.Circle(V(-21.5, 20.8, 0), V(0, 0, 1), 1.6),  # 14
    Part.LineSegment(V(19, 16.8, 0), V(15, 16.8, 0)),  # 15
    Part.LineSegment(V(15, 16.8, 0), V(15, 24.8, 0)),  # 16
    Part.LineSegment(V(15, 24.8, 0), V(19, 24.8, 0)),  # 17
    Part.ArcOfCircle(Part.Circle(V(19, 20.8, 0), V(0, 0, 1), 4), math.radians(-90), math.radians(90)),  # 18
    Part.Circle(V(19, 20.8, 0), V(0, 0, 1), 1.6),  # 19
], False)
sketch14.addConstraint([
    Sketcher.Constraint("Tangent", 0, 2, 1, 2),
    Sketcher.Constraint("Tangent", 1, 1, 2, 1),
    Sketcher.Constraint("Coincident", 2, 2, 3, 1),
    Sketcher.Constraint("Coincident", 3, 2, 0, 1),
    Sketcher.Constraint("Coincident", 5, 2, 6, 1),
    Sketcher.Constraint("Coincident", 6, 2, 7, 1),
    Sketcher.Constraint("Tangent", 7, 2, 8, 2),
    Sketcher.Constraint("Tangent", 8, 1, 5, 1),
    Sketcher.Constraint("Tangent", 10, 2, 11, 2),
    Sketcher.Constraint("Tangent", 11, 1, 12, 1),
    Sketcher.Constraint("Coincident", 12, 2, 13, 1),
    Sketcher.Constraint("Coincident", 13, 2, 10, 1),
    Sketcher.Constraint("Coincident", 15, 2, 16, 1),
    Sketcher.Constraint("Coincident", 16, 2, 17, 1),
    Sketcher.Constraint("Tangent", 17, 2, 18, 2),
    Sketcher.Constraint("Tangent", 18, 1, 15, 1),
    Sketcher.Constraint("Horizontal", 0),
    Sketcher.Constraint("Horizontal", 2),
    Sketcher.Constraint("Vertical", 3),
    Sketcher.Constraint("Horizontal", 5),
    Sketcher.Constraint("Vertical", 6),
    Sketcher.Constraint("Horizontal", 7),
    Sketcher.Constraint("Horizontal", 10),
    Sketcher.Constraint("Horizontal", 12),
    Sketcher.Constraint("Vertical", 13),
    Sketcher.Constraint("Horizontal", 15),
    Sketcher.Constraint("Vertical", 16),
    Sketcher.Constraint("Horizontal", 17),
    Sketcher.Constraint("Coincident", 4, 3, 1, 3),
    Sketcher.Constraint("Coincident", 9, 3, 8, 3),
    Sketcher.Constraint("Coincident", 14, 3, 11, 3),
    Sketcher.Constraint("Coincident", 19, 3, 18, 3),
    Sketcher.Constraint("Equal", 1, 8),
    Sketcher.Constraint("Equal", 4, 9),
    Sketcher.Constraint("Equal", 8, 11),
    Sketcher.Constraint("Equal", 9, 14),
    Sketcher.Constraint("Equal", 11, 18),
    Sketcher.Constraint("Equal", 14, 19),
    Sketcher.Constraint("Horizontal", 4, 3, 8, 3),
    Sketcher.Constraint("Horizontal", 14, 3, 18, 3),
    Sketcher.Constraint("Vertical", 4, 3, 11, 3),
    Sketcher.Constraint("Vertical", 9, 3, 18, 3),
    Sketcher.Constraint("Vertical", 3, 2, 12, 2),
    Sketcher.Constraint("Vertical", 6, 2, 15, 2),
    Sketcher.Constraint("Equal", 2, 5),
    Sketcher.Constraint("Radius", 1, 4.0),
    Sketcher.Constraint("Diameter", 4, 3.25),
    Sketcher.Constraint("DistanceX", 0, 2, 0, 1, 4.0),
    Sketcher.Constraint("DistanceX", -1, 1, 8, 3, 19.0),
    Sketcher.Constraint("DistanceX", 1, 3, -1, 1, 21.5),
    Sketcher.Constraint("DistanceY", 1, 3, -1, 1, 20.85),
    Sketcher.Constraint("DistanceY", -1, 1, 11, 3, 20.845553),
])
sketch14.setExpression("Constraints[45]", "Params.sketch14_radius")
sketch14.setExpression("Constraints[46]", "Params.sketch14_diameter")
sketch14.setExpression("Constraints[47]", "Params.sketch14_width")
pad8 = body.newObject("PartDesign::Pad", "Pad007")
pad8.Profile = sketch14
pad8.setExpression("Length", "Params.pad8_length")

doc.recompute()
